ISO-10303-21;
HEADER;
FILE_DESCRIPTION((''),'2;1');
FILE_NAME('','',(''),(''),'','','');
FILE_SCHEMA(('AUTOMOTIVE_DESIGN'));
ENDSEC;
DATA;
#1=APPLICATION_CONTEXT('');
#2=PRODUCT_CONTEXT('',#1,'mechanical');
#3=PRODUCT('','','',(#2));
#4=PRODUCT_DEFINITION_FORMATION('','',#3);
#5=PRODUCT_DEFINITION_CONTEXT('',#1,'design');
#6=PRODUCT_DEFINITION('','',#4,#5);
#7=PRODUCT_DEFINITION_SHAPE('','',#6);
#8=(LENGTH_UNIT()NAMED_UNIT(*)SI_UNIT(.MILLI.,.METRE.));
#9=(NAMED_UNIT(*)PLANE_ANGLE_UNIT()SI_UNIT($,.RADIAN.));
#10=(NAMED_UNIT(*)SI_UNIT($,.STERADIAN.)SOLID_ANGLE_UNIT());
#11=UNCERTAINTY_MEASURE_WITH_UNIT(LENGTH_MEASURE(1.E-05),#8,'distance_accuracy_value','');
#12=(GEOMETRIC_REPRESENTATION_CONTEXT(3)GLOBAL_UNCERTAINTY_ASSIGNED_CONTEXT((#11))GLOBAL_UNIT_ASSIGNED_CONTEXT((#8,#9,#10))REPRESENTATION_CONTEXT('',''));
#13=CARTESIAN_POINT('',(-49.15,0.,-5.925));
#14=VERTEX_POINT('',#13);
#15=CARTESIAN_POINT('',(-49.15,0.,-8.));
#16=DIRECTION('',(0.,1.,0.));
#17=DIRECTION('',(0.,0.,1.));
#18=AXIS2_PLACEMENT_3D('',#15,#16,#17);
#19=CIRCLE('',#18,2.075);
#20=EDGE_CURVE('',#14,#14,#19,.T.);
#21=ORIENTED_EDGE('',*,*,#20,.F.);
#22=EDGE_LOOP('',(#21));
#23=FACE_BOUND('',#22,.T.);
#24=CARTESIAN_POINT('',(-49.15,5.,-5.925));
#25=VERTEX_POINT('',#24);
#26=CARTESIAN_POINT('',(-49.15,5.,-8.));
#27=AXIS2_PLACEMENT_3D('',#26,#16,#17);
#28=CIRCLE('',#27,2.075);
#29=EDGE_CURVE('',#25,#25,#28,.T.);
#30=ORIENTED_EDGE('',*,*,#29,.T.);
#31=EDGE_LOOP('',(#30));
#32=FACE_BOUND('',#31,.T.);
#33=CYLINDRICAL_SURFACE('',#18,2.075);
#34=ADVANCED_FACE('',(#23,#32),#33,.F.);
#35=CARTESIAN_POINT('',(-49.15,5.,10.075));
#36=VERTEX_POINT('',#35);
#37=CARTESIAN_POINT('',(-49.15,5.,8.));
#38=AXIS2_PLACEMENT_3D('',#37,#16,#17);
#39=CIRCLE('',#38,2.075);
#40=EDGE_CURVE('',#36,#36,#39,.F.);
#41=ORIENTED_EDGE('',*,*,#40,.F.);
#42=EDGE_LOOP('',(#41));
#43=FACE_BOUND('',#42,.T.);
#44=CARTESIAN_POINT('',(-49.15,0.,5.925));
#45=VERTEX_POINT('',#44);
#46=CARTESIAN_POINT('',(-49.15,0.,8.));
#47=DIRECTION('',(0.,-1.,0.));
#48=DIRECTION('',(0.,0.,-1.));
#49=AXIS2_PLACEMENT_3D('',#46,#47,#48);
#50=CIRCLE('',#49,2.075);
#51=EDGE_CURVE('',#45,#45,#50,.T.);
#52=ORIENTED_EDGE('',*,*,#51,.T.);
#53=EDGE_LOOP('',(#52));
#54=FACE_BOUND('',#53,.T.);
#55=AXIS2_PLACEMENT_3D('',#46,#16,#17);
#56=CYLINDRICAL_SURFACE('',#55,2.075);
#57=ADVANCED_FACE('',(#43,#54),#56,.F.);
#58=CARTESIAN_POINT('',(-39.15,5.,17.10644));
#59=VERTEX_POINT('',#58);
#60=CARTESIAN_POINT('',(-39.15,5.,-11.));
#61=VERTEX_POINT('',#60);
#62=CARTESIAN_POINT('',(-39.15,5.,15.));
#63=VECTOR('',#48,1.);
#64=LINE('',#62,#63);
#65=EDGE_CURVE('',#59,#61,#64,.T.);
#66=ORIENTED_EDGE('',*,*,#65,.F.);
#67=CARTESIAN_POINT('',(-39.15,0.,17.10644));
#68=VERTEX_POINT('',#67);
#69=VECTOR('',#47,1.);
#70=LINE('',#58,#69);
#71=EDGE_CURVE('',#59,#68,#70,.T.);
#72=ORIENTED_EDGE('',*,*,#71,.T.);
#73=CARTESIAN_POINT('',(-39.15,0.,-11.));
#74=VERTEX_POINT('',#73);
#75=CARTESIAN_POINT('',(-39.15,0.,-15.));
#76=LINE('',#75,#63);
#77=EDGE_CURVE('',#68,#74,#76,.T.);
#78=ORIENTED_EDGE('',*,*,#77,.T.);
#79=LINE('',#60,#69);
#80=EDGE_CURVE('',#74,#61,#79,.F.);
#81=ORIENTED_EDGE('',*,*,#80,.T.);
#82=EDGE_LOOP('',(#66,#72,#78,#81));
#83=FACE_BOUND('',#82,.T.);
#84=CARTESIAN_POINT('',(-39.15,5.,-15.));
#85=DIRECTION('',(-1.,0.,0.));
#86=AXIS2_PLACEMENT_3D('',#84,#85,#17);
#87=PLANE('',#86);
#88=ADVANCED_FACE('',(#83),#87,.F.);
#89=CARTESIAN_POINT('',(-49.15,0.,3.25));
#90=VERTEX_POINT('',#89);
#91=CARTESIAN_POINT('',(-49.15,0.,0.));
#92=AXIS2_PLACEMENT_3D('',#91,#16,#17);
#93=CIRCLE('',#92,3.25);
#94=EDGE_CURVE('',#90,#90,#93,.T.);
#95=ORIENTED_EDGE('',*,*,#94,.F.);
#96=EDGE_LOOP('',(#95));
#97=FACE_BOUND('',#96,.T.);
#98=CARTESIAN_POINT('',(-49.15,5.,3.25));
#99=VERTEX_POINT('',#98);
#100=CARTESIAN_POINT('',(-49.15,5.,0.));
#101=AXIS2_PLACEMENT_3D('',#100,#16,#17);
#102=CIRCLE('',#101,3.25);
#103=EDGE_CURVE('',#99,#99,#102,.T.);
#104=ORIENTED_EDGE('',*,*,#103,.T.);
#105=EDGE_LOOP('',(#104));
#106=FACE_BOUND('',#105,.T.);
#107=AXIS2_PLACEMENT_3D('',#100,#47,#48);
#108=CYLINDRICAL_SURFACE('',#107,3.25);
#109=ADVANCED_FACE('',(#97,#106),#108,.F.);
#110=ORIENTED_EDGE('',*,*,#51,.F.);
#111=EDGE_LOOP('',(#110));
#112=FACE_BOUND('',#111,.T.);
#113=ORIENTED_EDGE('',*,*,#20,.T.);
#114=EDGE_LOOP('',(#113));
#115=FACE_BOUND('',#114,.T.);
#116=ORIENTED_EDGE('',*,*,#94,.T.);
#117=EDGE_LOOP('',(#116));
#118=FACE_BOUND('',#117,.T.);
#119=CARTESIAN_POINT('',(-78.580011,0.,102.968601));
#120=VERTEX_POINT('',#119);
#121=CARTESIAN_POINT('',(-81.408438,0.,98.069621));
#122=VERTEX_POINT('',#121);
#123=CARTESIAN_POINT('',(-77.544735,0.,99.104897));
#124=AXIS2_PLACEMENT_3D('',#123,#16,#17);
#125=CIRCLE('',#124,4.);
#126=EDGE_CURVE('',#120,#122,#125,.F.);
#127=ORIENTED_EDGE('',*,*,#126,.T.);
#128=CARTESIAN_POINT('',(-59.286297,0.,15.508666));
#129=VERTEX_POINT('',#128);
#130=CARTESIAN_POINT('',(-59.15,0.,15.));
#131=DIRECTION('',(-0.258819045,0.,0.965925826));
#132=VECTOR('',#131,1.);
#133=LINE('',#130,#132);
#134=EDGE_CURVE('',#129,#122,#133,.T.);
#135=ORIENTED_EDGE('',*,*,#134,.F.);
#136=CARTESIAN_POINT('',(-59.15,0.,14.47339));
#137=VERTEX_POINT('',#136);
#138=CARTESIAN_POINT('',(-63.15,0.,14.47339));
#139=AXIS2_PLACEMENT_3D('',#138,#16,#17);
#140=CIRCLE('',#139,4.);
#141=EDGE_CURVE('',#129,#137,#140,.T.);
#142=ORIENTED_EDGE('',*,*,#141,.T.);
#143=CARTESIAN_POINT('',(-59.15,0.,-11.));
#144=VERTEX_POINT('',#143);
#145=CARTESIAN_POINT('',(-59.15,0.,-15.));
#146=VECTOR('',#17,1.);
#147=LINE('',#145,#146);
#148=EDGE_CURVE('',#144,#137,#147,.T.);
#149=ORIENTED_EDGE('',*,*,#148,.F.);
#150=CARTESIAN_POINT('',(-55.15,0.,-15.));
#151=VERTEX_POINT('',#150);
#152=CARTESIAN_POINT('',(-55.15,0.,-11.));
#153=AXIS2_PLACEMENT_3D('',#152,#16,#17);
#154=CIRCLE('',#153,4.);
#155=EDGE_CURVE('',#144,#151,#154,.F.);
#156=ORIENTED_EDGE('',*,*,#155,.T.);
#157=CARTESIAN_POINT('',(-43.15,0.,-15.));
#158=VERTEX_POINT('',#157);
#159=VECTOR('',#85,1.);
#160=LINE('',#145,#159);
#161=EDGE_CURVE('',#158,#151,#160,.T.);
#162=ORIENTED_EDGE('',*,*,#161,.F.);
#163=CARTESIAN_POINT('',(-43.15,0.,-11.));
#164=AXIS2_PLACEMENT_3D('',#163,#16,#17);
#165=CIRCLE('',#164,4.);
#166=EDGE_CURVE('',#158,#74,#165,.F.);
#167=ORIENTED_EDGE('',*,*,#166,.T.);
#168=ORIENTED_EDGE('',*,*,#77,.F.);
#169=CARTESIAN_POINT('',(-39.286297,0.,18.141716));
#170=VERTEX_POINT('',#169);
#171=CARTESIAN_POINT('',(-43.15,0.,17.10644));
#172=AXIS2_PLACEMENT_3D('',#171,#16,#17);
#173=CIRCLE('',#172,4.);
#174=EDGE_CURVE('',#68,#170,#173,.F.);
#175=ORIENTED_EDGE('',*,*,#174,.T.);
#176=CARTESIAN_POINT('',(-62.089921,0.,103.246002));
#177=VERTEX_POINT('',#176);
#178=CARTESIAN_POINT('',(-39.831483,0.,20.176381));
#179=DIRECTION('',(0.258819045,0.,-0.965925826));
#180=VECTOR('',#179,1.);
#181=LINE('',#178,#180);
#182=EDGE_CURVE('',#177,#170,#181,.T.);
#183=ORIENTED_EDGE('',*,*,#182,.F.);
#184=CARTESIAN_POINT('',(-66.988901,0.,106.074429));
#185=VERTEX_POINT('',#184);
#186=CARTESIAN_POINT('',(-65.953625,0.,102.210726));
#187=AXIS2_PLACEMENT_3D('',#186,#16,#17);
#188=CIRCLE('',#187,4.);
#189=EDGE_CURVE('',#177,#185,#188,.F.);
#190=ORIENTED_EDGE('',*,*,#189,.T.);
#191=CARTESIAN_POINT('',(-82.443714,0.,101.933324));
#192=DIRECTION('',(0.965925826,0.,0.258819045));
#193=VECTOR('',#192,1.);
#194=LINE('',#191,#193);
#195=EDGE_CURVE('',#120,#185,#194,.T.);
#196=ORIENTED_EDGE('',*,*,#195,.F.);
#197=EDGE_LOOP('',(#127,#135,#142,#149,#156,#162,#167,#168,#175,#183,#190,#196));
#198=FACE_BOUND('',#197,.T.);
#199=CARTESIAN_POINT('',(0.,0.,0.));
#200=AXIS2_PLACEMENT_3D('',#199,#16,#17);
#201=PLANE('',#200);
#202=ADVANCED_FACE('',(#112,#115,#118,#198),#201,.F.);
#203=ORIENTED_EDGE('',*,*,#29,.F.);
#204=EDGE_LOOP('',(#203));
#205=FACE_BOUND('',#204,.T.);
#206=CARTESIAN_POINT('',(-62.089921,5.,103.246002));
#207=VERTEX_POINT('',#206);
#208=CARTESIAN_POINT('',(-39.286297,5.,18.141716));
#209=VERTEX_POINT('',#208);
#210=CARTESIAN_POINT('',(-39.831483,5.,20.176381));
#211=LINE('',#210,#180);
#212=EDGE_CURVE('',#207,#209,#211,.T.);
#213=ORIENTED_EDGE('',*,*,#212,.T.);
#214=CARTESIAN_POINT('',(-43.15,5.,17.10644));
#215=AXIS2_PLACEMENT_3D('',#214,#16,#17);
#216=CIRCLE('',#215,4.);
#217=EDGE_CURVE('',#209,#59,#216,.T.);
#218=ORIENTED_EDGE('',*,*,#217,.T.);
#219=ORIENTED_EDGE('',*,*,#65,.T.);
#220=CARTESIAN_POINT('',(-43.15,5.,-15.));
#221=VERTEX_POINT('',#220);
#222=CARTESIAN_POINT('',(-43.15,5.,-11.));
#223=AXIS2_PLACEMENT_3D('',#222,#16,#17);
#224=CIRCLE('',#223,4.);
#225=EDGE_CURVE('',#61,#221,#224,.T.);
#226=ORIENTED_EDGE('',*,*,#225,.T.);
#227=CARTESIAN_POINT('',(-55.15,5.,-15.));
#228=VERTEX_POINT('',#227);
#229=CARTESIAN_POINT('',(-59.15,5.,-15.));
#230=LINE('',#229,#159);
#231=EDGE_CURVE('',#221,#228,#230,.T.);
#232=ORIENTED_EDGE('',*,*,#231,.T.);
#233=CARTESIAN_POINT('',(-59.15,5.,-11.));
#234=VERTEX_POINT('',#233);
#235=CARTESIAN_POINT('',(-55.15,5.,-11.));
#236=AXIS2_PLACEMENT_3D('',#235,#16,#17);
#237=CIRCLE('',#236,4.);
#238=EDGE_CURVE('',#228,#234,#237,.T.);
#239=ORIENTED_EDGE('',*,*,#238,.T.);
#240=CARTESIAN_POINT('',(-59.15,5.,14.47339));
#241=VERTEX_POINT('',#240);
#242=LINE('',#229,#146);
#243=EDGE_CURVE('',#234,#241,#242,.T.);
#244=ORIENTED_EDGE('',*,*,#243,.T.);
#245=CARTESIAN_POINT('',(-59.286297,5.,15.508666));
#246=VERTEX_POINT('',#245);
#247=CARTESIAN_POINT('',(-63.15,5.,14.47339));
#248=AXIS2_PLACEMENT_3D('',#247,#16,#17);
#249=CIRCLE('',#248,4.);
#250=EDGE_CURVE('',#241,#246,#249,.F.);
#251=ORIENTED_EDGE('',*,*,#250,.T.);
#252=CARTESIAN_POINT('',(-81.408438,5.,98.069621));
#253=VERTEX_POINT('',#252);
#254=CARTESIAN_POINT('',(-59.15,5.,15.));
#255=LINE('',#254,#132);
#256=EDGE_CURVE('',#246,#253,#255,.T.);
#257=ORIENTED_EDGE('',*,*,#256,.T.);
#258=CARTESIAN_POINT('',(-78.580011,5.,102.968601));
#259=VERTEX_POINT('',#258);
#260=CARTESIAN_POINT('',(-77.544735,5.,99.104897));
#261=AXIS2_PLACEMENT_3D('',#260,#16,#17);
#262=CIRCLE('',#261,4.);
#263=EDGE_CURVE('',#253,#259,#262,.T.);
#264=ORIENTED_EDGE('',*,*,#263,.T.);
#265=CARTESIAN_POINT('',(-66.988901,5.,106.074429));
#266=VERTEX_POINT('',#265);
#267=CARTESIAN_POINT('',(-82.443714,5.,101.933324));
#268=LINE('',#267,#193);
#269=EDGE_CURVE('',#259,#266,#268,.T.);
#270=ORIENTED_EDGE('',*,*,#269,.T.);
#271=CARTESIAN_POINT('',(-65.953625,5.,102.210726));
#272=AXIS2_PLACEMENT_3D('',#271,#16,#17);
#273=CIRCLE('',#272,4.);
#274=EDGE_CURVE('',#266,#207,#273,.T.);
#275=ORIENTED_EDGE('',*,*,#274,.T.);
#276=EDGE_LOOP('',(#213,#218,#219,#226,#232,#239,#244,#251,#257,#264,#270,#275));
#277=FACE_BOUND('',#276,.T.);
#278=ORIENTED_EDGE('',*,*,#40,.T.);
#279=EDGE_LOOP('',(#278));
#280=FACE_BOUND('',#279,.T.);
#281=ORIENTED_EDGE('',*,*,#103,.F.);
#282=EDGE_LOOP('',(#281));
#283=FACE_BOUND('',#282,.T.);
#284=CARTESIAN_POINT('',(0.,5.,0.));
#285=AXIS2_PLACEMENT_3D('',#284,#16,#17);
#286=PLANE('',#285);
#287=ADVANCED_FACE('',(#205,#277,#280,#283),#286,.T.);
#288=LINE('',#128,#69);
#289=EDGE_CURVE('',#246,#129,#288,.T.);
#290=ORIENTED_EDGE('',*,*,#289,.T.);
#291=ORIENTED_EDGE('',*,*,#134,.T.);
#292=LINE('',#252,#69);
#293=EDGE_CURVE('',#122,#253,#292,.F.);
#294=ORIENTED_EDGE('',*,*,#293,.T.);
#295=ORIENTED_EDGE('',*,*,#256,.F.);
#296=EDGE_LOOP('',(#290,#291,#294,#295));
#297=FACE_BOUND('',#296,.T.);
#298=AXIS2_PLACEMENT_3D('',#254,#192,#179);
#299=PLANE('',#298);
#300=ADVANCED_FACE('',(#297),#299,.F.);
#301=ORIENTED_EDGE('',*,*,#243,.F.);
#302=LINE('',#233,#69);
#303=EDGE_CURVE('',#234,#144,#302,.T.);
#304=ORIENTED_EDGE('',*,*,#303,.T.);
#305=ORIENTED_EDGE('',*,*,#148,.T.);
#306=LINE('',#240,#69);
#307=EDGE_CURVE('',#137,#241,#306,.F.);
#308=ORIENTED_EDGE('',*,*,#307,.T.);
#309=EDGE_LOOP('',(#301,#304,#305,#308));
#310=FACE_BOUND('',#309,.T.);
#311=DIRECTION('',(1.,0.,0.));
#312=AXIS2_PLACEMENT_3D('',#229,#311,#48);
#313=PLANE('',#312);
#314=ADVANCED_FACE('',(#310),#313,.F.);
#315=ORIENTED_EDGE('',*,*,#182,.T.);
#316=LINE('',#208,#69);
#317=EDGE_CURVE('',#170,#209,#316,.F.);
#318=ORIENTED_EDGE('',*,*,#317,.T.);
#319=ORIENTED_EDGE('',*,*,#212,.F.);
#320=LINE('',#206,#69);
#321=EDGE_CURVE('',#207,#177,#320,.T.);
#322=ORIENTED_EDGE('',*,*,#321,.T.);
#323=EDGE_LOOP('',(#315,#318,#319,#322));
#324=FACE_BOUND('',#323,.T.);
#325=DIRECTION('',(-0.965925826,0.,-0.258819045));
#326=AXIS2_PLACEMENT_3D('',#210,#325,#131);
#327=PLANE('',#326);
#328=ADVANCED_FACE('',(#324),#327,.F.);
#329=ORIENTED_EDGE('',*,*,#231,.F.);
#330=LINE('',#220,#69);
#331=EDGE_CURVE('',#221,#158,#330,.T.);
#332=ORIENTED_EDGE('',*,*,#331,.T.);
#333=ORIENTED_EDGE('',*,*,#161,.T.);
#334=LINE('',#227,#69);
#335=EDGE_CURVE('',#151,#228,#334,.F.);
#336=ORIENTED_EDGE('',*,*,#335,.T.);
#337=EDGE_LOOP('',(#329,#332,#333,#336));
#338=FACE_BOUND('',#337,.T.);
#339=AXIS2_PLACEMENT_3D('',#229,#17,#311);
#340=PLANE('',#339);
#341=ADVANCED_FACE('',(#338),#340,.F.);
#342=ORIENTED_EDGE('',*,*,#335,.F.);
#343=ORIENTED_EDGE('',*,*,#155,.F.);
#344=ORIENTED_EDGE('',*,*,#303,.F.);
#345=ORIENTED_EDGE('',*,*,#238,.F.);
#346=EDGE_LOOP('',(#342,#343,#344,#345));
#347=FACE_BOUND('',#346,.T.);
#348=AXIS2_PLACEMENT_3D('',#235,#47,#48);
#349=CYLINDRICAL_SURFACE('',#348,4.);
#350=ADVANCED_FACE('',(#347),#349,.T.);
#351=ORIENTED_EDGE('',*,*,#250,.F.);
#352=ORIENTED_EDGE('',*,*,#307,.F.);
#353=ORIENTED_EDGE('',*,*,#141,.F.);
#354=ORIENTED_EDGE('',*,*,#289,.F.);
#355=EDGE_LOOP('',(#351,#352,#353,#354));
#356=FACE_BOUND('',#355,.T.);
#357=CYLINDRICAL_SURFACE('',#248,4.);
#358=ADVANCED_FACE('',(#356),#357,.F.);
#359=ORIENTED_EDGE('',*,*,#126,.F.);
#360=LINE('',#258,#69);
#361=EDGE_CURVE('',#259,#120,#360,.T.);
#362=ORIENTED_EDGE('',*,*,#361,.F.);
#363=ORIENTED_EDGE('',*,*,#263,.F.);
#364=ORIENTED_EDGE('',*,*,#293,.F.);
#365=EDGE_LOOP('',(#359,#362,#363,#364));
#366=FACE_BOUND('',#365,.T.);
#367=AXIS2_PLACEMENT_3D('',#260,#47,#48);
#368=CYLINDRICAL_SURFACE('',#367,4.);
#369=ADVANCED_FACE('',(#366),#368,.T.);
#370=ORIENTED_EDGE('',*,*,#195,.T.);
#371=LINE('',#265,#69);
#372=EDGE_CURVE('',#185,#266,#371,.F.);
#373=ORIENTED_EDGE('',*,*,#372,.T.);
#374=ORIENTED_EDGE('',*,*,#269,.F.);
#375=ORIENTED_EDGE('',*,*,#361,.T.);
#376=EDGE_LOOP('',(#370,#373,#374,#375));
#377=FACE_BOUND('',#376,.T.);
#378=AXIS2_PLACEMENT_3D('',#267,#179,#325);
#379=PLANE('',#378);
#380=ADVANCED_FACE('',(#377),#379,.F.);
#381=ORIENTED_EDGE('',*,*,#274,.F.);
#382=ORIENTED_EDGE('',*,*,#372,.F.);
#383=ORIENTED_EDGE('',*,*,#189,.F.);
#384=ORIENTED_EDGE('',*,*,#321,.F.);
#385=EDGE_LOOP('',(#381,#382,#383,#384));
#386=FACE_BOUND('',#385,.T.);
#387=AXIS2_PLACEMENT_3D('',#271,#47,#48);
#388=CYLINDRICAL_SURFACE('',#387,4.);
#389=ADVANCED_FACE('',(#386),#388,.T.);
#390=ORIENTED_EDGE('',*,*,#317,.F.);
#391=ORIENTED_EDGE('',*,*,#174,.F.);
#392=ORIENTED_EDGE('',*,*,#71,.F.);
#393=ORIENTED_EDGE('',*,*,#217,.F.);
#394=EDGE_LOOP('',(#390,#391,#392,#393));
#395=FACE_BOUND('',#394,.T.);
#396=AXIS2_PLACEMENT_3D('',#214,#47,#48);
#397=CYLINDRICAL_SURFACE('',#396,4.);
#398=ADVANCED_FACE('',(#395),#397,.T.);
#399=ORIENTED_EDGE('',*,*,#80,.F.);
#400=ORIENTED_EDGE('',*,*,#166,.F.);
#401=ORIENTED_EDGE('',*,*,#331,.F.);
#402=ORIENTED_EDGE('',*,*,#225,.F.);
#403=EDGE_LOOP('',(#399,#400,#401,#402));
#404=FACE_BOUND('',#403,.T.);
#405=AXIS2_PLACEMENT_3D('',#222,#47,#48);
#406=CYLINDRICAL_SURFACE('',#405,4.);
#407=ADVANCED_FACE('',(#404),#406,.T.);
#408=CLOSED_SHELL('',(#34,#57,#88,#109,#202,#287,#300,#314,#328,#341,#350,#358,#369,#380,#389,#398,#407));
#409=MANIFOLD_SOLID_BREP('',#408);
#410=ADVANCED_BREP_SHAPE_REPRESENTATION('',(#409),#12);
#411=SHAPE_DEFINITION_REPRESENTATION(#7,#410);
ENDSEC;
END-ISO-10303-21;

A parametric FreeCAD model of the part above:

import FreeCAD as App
import Part
import Sketcher
Q = App.Units.Quantity


def edges_at(feature, points):
    """Names of the edges that pass closest to the given points."""
    edges = feature.Shape.Edges
    near = lambda p: min(range(len(edges)), key=lambda i: edges[i].distToShape(Part.Vertex(*p))[0])
    return sorted({f"Edge{near(p) + 1}" for p in points})


def add_polygon(sketch, points):
    """Adds a closed chain of lines whose ends are joined by coincident constraints."""
    first, n = sketch.GeometryCount, len(points)
    for a, b in zip(points, points[1:] + points[:1]):
        sketch.addGeometry(Part.LineSegment(App.Vector(*a, 0), App.Vector(*b, 0)), False)
    for i in range(n):
        sketch.addConstraint(Sketcher.Constraint("Coincident", first + i, 2, first + (i + 1) % n, 1))

doc = App.newDocument("Part")
params = doc.addObject("Spreadsheet::Sheet", "Params")
for row, (alias, value) in enumerate([
    ("sketch1_diameter", "6.5 mm"),
    ("sketch1_width", "20 mm"),
    ("sketch1_height", "30 mm"),
    ("sketch1_length", "90 mm"),
    ("sketch1_length2", "20 mm"),
    ("pad1_length", "5 mm"),
    ("sketch2_diameter", "4.15 mm"),
    ("pocket1_length", "7 mm"),
    ("fillet_radius", "4 mm"),
], start=1):
    params.set(f"A{row}", alias)
    params.set(f"B{row}", "=" + value)
    params.setAlias(f"B{row}", alias)

body = doc.addObject("PartDesign::Body", "Body")

# Sketch on XZ plane
sketch1 = body.newObject("Sketcher::SketchObject", "Sketch")
sketch1.AttachmentSupport = (doc.getObject("XZ_Plane"), [""])
sketch1.MapMode = "FlatFace"
add_polygon(sketch1, [(-59.15, 15), (-82.443714, 101.933324), (-63.125198, 107.109705), (-39.831483, 20.176381), (-39.15, 17.63305), (-39.15, -15), (-59.15, -15)])  # lines 0-6
sketch1.addGeometry(Part.Circle(App.Vector(-49.15, 0, 0), App.Vector(0, 0, 1), 3.25), False)  # 7
sketch1.addConstraint([
    Sketcher.Constraint("Vertical", 4),
    Sketcher.Constraint("Horizontal", 5),
    Sketcher.Constraint("Vertical", 6),
    Sketcher.Constraint("PointOnObject", 7, 3, -1),
    Sketcher.Constraint("Perpendicular", 0, 1),
    Sketcher.Constraint("Perpendicular", 1, 2),
    Sketcher.Constraint("Parallel", 2, 3),
    Sketcher.Constraint("Equal", 0, 2),
    Sketcher.Constraint("Diameter", 7, Q("6.5 mm")),
    Sketcher.Constraint("DistanceX", 5, 2, 5, 1, Q("20 mm")),
    Sketcher.Constraint("DistanceY", 6, 1, 6, 2, Q("30 mm")),
    Sketcher.Constraint("Angle", 0, Q("105 deg")),
    Sketcher.Constraint("Distance", 0, Q("90 mm")),
    Sketcher.Constraint("Distance", 1, Q("20 mm")),
    Sketcher.Constraint("DistanceY", 4, 2, -1, 1, Q("15 mm")),
    Sketcher.Constraint("DistanceX", 7, 3, 3, 2, Q("10 mm")),
    Sketcher.Constraint("DistanceX", 7, 3, -1, 1, Q("49.15 mm")),
])
sketch1.setExpression("Constraints[15]", "Params.sketch1_diameter")
sketch1.setExpression("Constraints[16]", "Params.sketch1_width")
sketch1.setExpression("Constraints[17]", "Params.sketch1_height")
sketch1.setExpression("Constraints[19]", "Params.sketch1_length")
sketch1.setExpression("Constraints[20]", "Params.sketch1_length2")
pad1 = body.newObject("PartDesign::Pad", "Pad")
pad1.Profile = sketch1
pad1.setExpression("Length", "Params.pad1_length")
pad1.Reversed = True

# Sketch on XZ plane
sketch2 = body.newObject("Sketcher::SketchObject", "Sketch001")
sketch2.AttachmentSupport = (doc.getObject("XZ_Plane"), [""])
sketch2.MapMode = "FlatFace"
sketch2.AttachmentOffset = App.Placement(App.Vector(0, 0, 1), App.Rotation())
sketch2.addGeometry(Part.Circle(App.Vector(-49.15, -8, 0), App.Vector(0, 0, 1), 2.075), False)
sketch2.addConstraint([
    Sketcher.Constraint("Diameter", 0, Q("4.15 mm")),
    Sketcher.Constraint("DistanceY", 0, 3, -1, 1, Q("8 mm")),
    Sketcher.Constraint("DistanceX", 0, 3, -1, 1, Q("49.15 mm")),
])
sketch2.setExpression("Constraints[0]", "Params.sketch2_diameter")
pocket1 = body.newObject("PartDesign::Pocket", "Pocket")
pocket1.Profile = sketch2
pocket1.setExpression("Length", "Params.pocket1_length")
doc.recompute()

mirrored = body.newObject("PartDesign::Mirrored", "Mirrored")
mirrored.Originals = [pocket1]
mirrored.MirrorPlane = (doc.getObject("XY_Plane"), [""])
body.Tip = mirrored
doc.recompute()

fillet = body.newObject("PartDesign::Fillet", "Fillet")
fillet.Base = (mirrored, edges_at(mirrored, [
    (-39.15, 2.5, 17.633),
    (-63.125, 2.5, 107.11),
    (-82.444, 2.5, 101.933),
    (-59.15, 2.5, 15),
    (-59.15, 2.5, -15),
    (-39.15, 2.5, -15),
]))
fillet.setExpression("Radius", "Params.fillet_radius")

doc.recompute()
